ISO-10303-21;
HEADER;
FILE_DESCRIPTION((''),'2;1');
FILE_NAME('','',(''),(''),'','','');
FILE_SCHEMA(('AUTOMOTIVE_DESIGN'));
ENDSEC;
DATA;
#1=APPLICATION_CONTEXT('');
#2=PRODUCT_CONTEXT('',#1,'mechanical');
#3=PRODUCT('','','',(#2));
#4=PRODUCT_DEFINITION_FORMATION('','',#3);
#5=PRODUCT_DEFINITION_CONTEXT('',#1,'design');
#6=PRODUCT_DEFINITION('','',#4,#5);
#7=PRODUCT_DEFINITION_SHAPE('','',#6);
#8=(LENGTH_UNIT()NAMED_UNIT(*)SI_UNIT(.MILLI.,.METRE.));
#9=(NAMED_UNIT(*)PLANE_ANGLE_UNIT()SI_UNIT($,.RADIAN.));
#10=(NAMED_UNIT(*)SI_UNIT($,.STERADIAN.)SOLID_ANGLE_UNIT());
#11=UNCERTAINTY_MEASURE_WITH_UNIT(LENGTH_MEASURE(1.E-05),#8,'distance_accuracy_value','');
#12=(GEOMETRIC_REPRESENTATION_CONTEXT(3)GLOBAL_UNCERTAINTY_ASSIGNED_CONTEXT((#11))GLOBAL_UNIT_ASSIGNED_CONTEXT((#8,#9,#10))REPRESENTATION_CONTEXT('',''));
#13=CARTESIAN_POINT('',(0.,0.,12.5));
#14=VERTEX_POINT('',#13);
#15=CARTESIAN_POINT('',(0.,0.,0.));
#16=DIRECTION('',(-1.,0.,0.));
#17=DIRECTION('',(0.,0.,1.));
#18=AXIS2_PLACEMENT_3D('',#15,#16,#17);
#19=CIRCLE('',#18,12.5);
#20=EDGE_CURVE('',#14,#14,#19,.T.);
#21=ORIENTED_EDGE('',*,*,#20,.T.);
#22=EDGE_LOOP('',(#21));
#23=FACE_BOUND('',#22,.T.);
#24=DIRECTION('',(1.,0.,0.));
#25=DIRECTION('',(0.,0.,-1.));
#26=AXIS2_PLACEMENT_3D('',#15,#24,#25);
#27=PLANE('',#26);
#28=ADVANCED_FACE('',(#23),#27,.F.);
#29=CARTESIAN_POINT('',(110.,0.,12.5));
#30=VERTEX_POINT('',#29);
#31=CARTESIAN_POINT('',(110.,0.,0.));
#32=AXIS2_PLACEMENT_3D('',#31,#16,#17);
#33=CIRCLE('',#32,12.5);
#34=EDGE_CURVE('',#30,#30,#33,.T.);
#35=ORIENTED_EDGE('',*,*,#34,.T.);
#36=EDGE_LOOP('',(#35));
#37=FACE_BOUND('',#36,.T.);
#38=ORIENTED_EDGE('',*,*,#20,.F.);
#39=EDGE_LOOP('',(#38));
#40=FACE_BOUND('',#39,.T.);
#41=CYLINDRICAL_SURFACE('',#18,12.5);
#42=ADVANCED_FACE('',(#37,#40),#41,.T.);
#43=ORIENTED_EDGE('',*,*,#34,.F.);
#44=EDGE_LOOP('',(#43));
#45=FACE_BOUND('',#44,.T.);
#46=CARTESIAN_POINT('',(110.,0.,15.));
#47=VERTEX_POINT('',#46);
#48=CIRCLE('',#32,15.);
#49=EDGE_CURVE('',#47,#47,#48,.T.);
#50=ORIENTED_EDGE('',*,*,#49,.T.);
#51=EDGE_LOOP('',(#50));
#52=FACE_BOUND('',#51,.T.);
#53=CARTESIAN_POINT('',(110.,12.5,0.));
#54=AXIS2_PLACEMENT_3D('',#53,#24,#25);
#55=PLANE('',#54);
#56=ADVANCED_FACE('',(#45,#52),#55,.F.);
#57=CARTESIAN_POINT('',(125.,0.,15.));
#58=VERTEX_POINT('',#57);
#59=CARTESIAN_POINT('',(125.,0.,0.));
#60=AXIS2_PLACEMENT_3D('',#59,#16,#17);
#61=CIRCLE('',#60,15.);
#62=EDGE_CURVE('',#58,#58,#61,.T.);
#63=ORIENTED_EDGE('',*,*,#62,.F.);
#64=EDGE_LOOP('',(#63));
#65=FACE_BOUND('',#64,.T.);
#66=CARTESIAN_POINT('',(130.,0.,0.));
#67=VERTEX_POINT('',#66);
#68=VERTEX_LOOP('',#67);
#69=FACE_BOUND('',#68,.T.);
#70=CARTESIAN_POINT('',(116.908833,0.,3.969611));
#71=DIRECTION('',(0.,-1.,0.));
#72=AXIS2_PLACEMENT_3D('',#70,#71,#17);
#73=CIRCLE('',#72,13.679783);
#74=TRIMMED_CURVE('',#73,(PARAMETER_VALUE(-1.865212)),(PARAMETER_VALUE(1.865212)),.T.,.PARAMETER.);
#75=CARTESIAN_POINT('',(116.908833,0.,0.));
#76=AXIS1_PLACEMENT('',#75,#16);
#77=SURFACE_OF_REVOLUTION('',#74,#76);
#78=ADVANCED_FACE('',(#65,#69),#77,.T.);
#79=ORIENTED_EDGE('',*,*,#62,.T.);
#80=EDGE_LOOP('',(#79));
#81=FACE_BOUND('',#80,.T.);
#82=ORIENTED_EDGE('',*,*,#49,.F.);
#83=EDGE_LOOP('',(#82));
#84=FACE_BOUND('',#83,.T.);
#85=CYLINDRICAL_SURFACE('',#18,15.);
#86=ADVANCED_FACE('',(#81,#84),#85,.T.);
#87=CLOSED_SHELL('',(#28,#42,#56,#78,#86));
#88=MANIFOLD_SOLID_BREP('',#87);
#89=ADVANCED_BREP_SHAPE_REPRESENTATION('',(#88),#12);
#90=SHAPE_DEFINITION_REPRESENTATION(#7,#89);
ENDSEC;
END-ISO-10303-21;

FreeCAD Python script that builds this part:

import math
import FreeCAD as App
import Part
import Sketcher
Q = App.Units.Quantity

doc = App.newDocument("Part")
body = doc.addObject("PartDesign::Body", "Body")

sketch1 = body.newObject("Sketcher::SketchObject", "Sketch")
sketch1.AttachmentSupport = (doc.getObject("XY_Plane"), [""])
sketch1.MapMode = "FlatFace"
sketch1.addGeometry(Part.LineSegment(App.Vector(0, 12.5, 0), App.Vector(0, 0, 0)), False)
sketch1.addGeometry(Part.LineSegment(App.Vector(0, 0, 0), App.Vector(130, 0, 0)), False)
sketch1.addGeometry(Part.ArcOfCircle(Part.Circle(App.Vector(116.9, 4, 0), App.Vector(0, 0, 1), 13.7), math.radians(-17), math.radians(54)), False)
sketch1.addGeometry(Part.LineSegment(App.Vector(125, 15, 0), App.Vector(110, 15, 0)), False)
sketch1.addGeometry(Part.LineSegment(App.Vector(110, 15, 0), App.Vector(110, 12.5, 0)), False)
sketch1.addGeometry(Part.LineSegment(App.Vector(110, 12.5, 0), App.Vector(0, 12.5, 0)), False)
sketch1.addConstraint(Sketcher.Constraint("Coincident", 0, 2, 1, 1))
sketch1.addConstraint(Sketcher.Constraint("Coincident", 1, 2, 2, 1))
sketch1.addConstraint(Sketcher.Constraint("Coincident", 2, 2, 3, 1))
sketch1.addConstraint(Sketcher.Constraint("Coincident", 3, 2, 4, 1))
sketch1.addConstraint(Sketcher.Constraint("Coincident", 4, 2, 5, 1))
sketch1.addConstraint(Sketcher.Constraint("Coincident", 5, 2, 0, 1))
sketch1.addConstraint(Sketcher.Constraint("Vertical", 0))
sketch1.addConstraint(Sketcher.Constraint("Horizontal", 1))
sketch1.addConstraint(Sketcher.Constraint("Horizontal", 3))
sketch1.addConstraint(Sketcher.Constraint("Vertical", 4))
sketch1.addConstraint(Sketcher.Constraint("Horizontal", 5))
sketch1.addConstraint(Sketcher.Constraint("Coincident", 0, 2, -1, 1))
sketch1.addConstraint(Sketcher.Constraint("DistanceX", 1, 1, 1, 2, Q("130 mm")))
sketch1.addConstraint(Sketcher.Constraint("DistanceX", 3, 2, 3, 1, Q("15 mm")))
sketch1.addConstraint(Sketcher.Constraint("DistanceX", 5, 2, 5, 1, Q("110 mm")))
sketch1.addConstraint(Sketcher.Constraint("DistanceY", 0, 2, 0, 1, Q("12.5 mm")))
sketch1.addConstraint(Sketcher.Constraint("DistanceY", 4, 2, 4, 1, Q("2.5 mm")))
sketch1.addConstraint(Sketcher.Constraint("Radius", 2, Q("13.679783 mm")))
revolution = body.newObject("PartDesign::Revolution", "Revolution")
revolution.Profile = sketch1
revolution.ReferenceAxis = (sketch1, ["H_Axis"])
revolution.Angle = 360

doc.recompute()
